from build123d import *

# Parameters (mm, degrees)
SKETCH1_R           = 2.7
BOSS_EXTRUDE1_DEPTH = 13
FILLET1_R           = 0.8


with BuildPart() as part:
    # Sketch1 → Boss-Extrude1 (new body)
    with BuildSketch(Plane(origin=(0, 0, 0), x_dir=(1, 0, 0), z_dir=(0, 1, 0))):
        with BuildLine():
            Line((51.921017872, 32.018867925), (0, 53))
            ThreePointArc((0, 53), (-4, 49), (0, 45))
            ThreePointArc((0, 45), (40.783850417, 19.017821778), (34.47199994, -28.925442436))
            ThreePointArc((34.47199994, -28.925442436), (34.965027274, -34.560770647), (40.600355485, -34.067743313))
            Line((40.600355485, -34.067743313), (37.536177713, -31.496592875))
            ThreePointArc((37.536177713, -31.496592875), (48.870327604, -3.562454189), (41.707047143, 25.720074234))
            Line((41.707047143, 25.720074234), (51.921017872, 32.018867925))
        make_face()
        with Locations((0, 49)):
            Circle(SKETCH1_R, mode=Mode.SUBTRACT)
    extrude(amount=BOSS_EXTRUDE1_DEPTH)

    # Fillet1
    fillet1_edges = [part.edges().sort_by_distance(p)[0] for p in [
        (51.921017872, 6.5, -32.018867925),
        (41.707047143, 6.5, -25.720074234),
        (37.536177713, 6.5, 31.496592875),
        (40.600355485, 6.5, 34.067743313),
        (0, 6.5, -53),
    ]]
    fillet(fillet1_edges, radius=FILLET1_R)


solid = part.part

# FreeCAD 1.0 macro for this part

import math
import FreeCAD as App
import Part
import Sketcher
Q = App.Units.Quantity


def edges_at(feature, points):
    """Names of the edges that pass closest to the given points."""
    edges = feature.Shape.Edges
    near = lambda p: min(range(len(edges)), key=lambda i: edges[i].distToShape(Part.Vertex(*p))[0])
    return sorted({f"Edge{near(p) + 1}" for p in points})

doc = App.newDocument("Part")
params = doc.addObject("Spreadsheet::Sheet", "Params")
for row, (alias, value) in enumerate([
    ("sketch1_radius", "4 mm"),
    ("sketch1_radius2", "45 mm"),
    ("sketch1_diameter", "5.4 mm"),
    ("sketch1_length", "56 mm"),
    ("sketch1_length2", "12 mm"),
    ("pad1_length", "13 mm"),
    ("fillet_radius", "0.8 mm"),
], start=1):
    params.set(f"A{row}", alias)
    params.set(f"B{row}", "=" + value)
    params.setAlias(f"B{row}", alias)

body = doc.addObject("PartDesign::Body", "Body")

# Sketch on XZ plane
sketch1 = body.newObject("Sketcher::SketchObject", "Sketch")
sketch1.AttachmentSupport = (doc.getObject("XZ_Plane"), [""])
sketch1.MapMode = "FlatFace"
sketch1.addGeometry(Part.LineSegment(App.Vector(51.9, -32, 0), App.Vector(0, -53, 0)), False)
sketch1.addGeometry(Part.ArcOfCircle(Part.Circle(App.Vector(0, -49, 0), App.Vector(0, 0, 1), 4), math.radians(90), math.radians(270)), False)
sketch1.addGeometry(Part.ArcOfCircle(Part.Circle(App.Vector(0, 0, 0), App.Vector(0, 0, 1), 45), math.radians(-90), math.radians(40)), False)
sketch1.addGeometry(Part.ArcOfCircle(Part.Circle(App.Vector(37.5, 31.5, 0), App.Vector(0, 0, 1), 4), math.radians(40), math.radians(220)), False)
sketch1.addGeometry(Part.LineSegment(App.Vector(40.6, 34.1, 0), App.Vector(37.5, 31.5, 0)), False)
sketch1.addGeometry(Part.ArcOfCircle(Part.Circle(App.Vector(0, 0, 0), App.Vector(0, 0, 1), 49), math.radians(-32), math.radians(40)), False)
sketch1.addGeometry(Part.LineSegment(App.Vector(41.7, -25.7, 0), App.Vector(51.9, -32, 0)), False)
sketch1.addGeometry(Part.Circle(App.Vector(0, -49, 0), App.Vector(0, 0, 1), 2.7), False)
sketch1.addConstraint(Sketcher.Constraint("Coincident", 0, 2, 1, 2))
sketch1.addConstraint(Sketcher.Constraint("Tangent", 1, 1, 2, 1))
sketch1.addConstraint(Sketcher.Constraint("Tangent", 2, 2, 3, 2))
sketch1.addConstraint(Sketcher.Constraint("Coincident", 3, 1, 4, 1))
sketch1.addConstraint(Sketcher.Constraint("Coincident", 4, 2, 5, 2))
sketch1.addConstraint(Sketcher.Constraint("Coincident", 5, 1, 6, 1))
sketch1.addConstraint(Sketcher.Constraint("Coincident", 6, 2, 0, 1))
sketch1.addConstraint(Sketcher.Constraint("Coincident", 2, 3, -1, 1))
sketch1.addConstraint(Sketcher.Constraint("Coincident", 5, 3, -1, 1))
sketch1.addConstraint(Sketcher.Constraint("Coincident", 7, 3, 1, 3))
sketch1.addConstraint(Sketcher.Constraint("Coincident", 4, 2, 3, 3))
sketch1.addConstraint(Sketcher.Constraint("Equal", 1, 3))
sketch1.addConstraint(Sketcher.Constraint("PointOnObject", 1, 3, -2))
sketch1.addConstraint(Sketcher.Constraint("PointOnObject", 0, 2, -2))
sketch1.addConstraint(Sketcher.Constraint("Radius", 1, 4.0))
sketch1.addConstraint(Sketcher.Constraint("Radius", 2, 45.0))
sketch1.addConstraint(Sketcher.Constraint("Diameter", 7, 5.4))
sketch1.addConstraint(Sketcher.Constraint("Angle", 4, Q("-140 deg")))
sketch1.addConstraint(Sketcher.Constraint("Distance", 0, 56.0))
sketch1.addConstraint(Sketcher.Constraint("Distance", 6, 12.0))
sketch1.addConstraint(Sketcher.Constraint("DistanceX", -1, 1, 2, 2, 34.472))
sketch1.addConstraint(Sketcher.Constraint("DistanceX", 5, 1, 6, 2, 10.213971))
sketch1.setExpression("Constraints[14]", "Params.sketch1_radius")
sketch1.setExpression("Constraints[15]", "Params.sketch1_radius2")
sketch1.setExpression("Constraints[16]", "Params.sketch1_diameter")
sketch1.setExpression("Constraints[18]", "Params.sketch1_length")
sketch1.setExpression("Constraints[19]", "Params.sketch1_length2")
pad1 = body.newObject("PartDesign::Pad", "Pad")
pad1.Profile = sketch1
pad1.setExpression("Length", "Params.pad1_length")
pad1.Reversed = True
doc.recompute()

fillet = body.newObject("PartDesign::Fillet", "Fillet")
fillet.Base = (pad1, edges_at(pad1, [
    (51.921, 6.5, -32.019),
    (41.707, 6.5, -25.72),
    (37.536, 6.5, 31.497),
    (40.6, 6.5, 34.068),
    (0, 6.5, -53),
]))
fillet.setExpression("Radius", "Params.fillet_radius")

doc.recompute()
